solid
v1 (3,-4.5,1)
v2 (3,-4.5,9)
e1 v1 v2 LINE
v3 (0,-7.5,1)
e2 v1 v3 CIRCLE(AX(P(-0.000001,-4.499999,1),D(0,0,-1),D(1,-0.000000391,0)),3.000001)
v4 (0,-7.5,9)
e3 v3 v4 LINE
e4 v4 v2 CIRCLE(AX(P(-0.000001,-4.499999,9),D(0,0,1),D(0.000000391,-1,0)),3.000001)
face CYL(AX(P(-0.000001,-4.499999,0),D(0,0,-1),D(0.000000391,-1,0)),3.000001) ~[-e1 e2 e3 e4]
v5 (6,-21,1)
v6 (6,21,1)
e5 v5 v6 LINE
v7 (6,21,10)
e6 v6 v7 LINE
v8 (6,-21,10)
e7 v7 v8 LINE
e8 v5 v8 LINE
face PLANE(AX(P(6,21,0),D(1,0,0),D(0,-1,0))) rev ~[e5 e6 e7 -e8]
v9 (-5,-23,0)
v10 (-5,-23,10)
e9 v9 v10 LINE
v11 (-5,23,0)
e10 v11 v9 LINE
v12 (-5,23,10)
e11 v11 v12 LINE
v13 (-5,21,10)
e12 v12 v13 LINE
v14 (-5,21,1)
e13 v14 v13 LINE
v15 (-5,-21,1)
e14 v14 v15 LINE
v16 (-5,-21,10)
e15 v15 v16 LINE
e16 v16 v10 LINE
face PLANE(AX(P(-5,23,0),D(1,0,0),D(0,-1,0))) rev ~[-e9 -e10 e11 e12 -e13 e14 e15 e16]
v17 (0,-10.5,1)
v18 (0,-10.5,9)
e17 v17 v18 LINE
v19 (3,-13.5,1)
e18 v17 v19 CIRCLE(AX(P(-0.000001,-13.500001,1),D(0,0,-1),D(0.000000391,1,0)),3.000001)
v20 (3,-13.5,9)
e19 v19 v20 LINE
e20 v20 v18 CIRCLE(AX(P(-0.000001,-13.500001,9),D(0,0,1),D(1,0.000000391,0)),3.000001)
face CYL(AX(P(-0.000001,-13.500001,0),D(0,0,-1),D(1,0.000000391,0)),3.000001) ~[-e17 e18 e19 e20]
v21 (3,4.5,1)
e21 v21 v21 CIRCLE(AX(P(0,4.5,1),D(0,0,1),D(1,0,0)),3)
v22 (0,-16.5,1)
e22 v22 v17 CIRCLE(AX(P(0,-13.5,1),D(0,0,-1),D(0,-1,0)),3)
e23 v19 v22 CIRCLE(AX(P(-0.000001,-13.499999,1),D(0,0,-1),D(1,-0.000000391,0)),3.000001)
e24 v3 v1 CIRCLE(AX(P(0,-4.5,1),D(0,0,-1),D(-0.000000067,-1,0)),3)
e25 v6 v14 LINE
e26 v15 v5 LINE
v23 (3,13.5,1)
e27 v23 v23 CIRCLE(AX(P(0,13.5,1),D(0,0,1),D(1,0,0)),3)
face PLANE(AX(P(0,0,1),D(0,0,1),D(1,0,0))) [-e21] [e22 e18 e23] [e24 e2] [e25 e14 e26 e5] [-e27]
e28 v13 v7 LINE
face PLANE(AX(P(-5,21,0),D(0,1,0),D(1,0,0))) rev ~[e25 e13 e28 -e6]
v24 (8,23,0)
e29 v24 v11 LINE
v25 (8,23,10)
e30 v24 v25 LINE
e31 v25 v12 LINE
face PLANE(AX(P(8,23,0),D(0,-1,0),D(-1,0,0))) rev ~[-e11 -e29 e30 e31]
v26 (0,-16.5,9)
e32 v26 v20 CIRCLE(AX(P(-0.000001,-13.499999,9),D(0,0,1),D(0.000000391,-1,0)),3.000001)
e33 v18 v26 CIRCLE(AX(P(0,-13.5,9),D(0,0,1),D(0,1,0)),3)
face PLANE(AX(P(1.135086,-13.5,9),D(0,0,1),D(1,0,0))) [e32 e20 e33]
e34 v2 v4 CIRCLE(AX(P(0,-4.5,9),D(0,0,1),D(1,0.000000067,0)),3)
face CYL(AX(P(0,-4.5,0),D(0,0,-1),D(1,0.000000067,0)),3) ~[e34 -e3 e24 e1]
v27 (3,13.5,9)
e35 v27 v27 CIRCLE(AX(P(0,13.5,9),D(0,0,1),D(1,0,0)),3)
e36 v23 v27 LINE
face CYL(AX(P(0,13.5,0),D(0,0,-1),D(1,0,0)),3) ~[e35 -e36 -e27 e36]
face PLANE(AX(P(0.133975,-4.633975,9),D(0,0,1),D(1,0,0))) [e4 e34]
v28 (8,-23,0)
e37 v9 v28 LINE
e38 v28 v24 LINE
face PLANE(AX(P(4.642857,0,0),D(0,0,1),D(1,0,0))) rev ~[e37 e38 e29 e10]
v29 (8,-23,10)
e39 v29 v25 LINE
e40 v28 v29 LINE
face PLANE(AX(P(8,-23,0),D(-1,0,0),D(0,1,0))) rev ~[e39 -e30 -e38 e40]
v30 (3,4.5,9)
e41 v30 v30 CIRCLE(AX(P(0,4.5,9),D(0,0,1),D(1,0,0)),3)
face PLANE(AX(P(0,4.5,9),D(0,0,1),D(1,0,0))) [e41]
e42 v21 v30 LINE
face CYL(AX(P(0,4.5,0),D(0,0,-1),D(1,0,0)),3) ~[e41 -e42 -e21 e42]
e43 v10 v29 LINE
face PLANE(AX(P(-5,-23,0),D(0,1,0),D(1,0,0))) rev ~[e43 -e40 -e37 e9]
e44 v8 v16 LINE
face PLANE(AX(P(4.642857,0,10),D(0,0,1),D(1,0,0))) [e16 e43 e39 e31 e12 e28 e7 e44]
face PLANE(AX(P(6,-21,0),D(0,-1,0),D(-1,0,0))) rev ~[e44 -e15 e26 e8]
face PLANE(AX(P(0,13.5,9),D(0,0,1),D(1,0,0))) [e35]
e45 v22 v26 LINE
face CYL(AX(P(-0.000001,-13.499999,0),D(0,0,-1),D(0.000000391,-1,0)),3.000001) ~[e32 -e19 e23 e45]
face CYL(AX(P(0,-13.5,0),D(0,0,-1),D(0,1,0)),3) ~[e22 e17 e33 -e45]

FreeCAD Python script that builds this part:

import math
import FreeCAD as App
import Part
import Sketcher

V = App.Vector

doc = App.newDocument("Part")
body = doc.addObject("PartDesign::Body", "Body")

sketch1 = body.newObject("Sketcher::SketchObject", "Sketch")
sketch1.AttachmentSupport = (doc.getObject("XY_Plane"), [""])
sketch1.MapMode = "FlatFace"
sketch1.addGeometry(Part.LineSegment(V(-5, -21, 0), V(6, -21, 0)), False)
sketch1.addGeometry(Part.LineSegment(V(6, -21, 0), V(6, 21, 0)), False)
sketch1.addGeometry(Part.LineSegment(V(6, 21, 0), V(-5, 21, 0)), False)
sketch1.addGeometry(Part.LineSegment(V(-5, 21, 0), V(-5, -21, 0)), False)
sketch1.addGeometry(Part.ArcOfCircle(Part.Circle(V(0, -13.5, 0), V(0, 0, 1), 3), math.radians(0), math.radians(90)), False)
sketch1.addGeometry(Part.ArcOfCircle(Part.Circle(V(0, -13.5, 0), V(0, 0, 1), 3), math.radians(-90), math.radians(0)), False)
sketch1.addGeometry(Part.ArcOfCircle(Part.Circle(V(0, -13.5, 0), V(0, 0, 1), 3), math.radians(90), math.radians(270)), False)
sketch1.addGeometry(Part.ArcOfCircle(Part.Circle(V(0, -4.5, 0), V(0, 0, 1), 3), math.radians(0), math.radians(270)), False)
sketch1.addGeometry(Part.ArcOfCircle(Part.Circle(V(0, -4.5, 0), V(0, 0, 1), 3), math.radians(-90), math.radians(0)), False)
sketch1.addGeometry(Part.Circle(V(0, 4.5, 0), V(0, 0, 1), 3), False)
sketch1.addGeometry(Part.Circle(V(0, 13.5, 0), V(0, 0, 1), 3), False)
sketch1.addConstraint(Sketcher.Constraint("Coincident", 0, 2, 1, 1))
sketch1.addConstraint(Sketcher.Constraint("Coincident", 1, 2, 2, 1))
sketch1.addConstraint(Sketcher.Constraint("Coincident", 2, 2, 3, 1))
sketch1.addConstraint(Sketcher.Constraint("Coincident", 3, 2, 0, 1))
sketch1.addConstraint(Sketcher.Constraint("Tangent", 4, 1, 5, 2))
sketch1.addConstraint(Sketcher.Constraint("Tangent", 5, 1, 6, 2))
sketch1.addConstraint(Sketcher.Constraint("Tangent", 6, 1, 4, 2))
sketch1.addConstraint(Sketcher.Constraint("Tangent", 7, 1, 8, 2))
sketch1.addConstraint(Sketcher.Constraint("Coincident", 8, 1, 7, 2))
sketch1.addConstraint(Sketcher.Constraint("Horizontal", 0))
sketch1.addConstraint(Sketcher.Constraint("Vertical", 1))
sketch1.addConstraint(Sketcher.Constraint("Horizontal", 2))
sketch1.addConstraint(Sketcher.Constraint("Vertical", 3))
sketch1.addConstraint(Sketcher.Constraint("Equal", 6, 7))
sketch1.addConstraint(Sketcher.Constraint("Equal", 8, 9))
sketch1.addConstraint(Sketcher.Constraint("Equal", 9, 10))
sketch1.addConstraint(Sketcher.Constraint("Symmetric", 7, 3, 9, 3, -1, 1))
sketch1.addConstraint(Sketcher.Constraint("Symmetric", 4, 3, 10, 3, -1, 1))
sketch1.addConstraint(Sketcher.Constraint("PointOnObject", 4, 3, -2))
sketch1.addConstraint(Sketcher.Constraint("PointOnObject", 7, 3, -2))
sketch1.addConstraint(Sketcher.Constraint("PointOnObject", 5, 1, -2))
sketch1.addConstraint(Sketcher.Constraint("PointOnObject", 6, 1, -2))
sketch1.addConstraint(Sketcher.Constraint("PointOnObject", 8, 1, -2))
sketch1.addConstraint(Sketcher.Constraint("Horizontal", 6, 3, 4, 1))
sketch1.addConstraint(Sketcher.Constraint("Horizontal", 8, 3, 7, 1))
sketch1.addConstraint(Sketcher.Constraint("Diameter", 9, 6.0))
sketch1.addConstraint(Sketcher.Constraint("DistanceX", 0, 1, 0, 2, 11.0))
sketch1.addConstraint(Sketcher.Constraint("DistanceY", 1, 1, 1, 2, 42.0))
sketch1.addConstraint(Sketcher.Constraint("DistanceX", -1, 1, 0, 2, 6.0))
sketch1.addConstraint(Sketcher.Constraint("DistanceY", 0, 2, -1, 1, 21.0))
sketch1.addConstraint(Sketcher.Constraint("DistanceY", 5, 3, 7, 3, 8.999999))
sketch1.addConstraint(Sketcher.Constraint("DistanceY", 8, 3, 9, 3, 8.999999))
pad1 = body.newObject("PartDesign::Pad", "Pad")
pad1.Profile = sketch1
pad1.Length = 1

sketch2 = body.newObject("Sketcher::SketchObject", "Sketch001")
sketch2.AttachmentSupport = (doc.getObject("XY_Plane"), [""])
sketch2.MapMode = "FlatFace"
sketch2.addGeometry(Part.LineSegment(V(-5, 23, 0), V(-5, 21, 0)), False)
sketch2.addGeometry(Part.LineSegment(V(-5, 21, 0), V(6, 21, 0)), False)
sketch2.addGeometry(Part.LineSegment(V(6, 21, 0), V(6, -21, 0)), False)
sketch2.addGeometry(Part.LineSegment(V(6, -21, 0), V(-5, -21, 0)), False)
sketch2.addGeometry(Part.LineSegment(V(-5, -21, 0), V(-5, -23, 0)), False)
sketch2.addGeometry(Part.LineSegment(V(-5, -23, 0), V(8, -23, 0)), False)
sketch2.addGeometry(Part.LineSegment(V(8, -23, 0), V(8, 23, 0)), False)
sketch2.addGeometry(Part.LineSegment(V(8, 23, 0), V(-5, 23, 0)), False)
sketch2.addConstraint(Sketcher.Constraint("Coincident", 0, 2, 1, 1))
sketch2.addConstraint(Sketcher.Constraint("Coincident", 1, 2, 2, 1))
sketch2.addConstraint(Sketcher.Constraint("Coincident", 2, 2, 3, 1))
sketch2.addConstraint(Sketcher.Constraint("Coincident", 3, 2, 4, 1))
sketch2.addConstraint(Sketcher.Constraint("Coincident", 4, 2, 5, 1))
sketch2.addConstraint(Sketcher.Constraint("Coincident", 5, 2, 6, 1))
sketch2.addConstraint(Sketcher.Constraint("Coincident", 6, 2, 7, 1))
sketch2.addConstraint(Sketcher.Constraint("Coincident", 7, 2, 0, 1))
sketch2.addConstraint(Sketcher.Constraint("Vertical", 0))
sketch2.addConstraint(Sketcher.Constraint("Horizontal", 1))
sketch2.addConstraint(Sketcher.Constraint("Vertical", 2))
sketch2.addConstraint(Sketcher.Constraint("Horizontal", 3))
sketch2.addConstraint(Sketcher.Constraint("Vertical", 4))
sketch2.addConstraint(Sketcher.Constraint("Horizontal", 5))
sketch2.addConstraint(Sketcher.Constraint("Vertical", 6))
sketch2.addConstraint(Sketcher.Constraint("Horizontal", 7))
sketch2.addConstraint(Sketcher.Constraint("Symmetric", 0, 2, 3, 2, -1))
sketch2.addConstraint(Sketcher.Constraint("Equal", 0, 4))
sketch2.addConstraint(Sketcher.Constraint("DistanceX", 1, 1, 1, 2, 11.0))
sketch2.addConstraint(Sketcher.Constraint("DistanceX", 5, 1, 5, 2, 13.0))
sketch2.addConstraint(Sketcher.Constraint("DistanceY", 0, 2, 0, 1, 2.0))
sketch2.addConstraint(Sketcher.Constraint("DistanceY", 2, 2, 2, 1, 42.0))
sketch2.addConstraint(Sketcher.Constraint("DistanceX", 0, 2, -1, 1, 5.0))
pad2 = body.newObject("PartDesign::Pad", "Pad001")
pad2.Profile = sketch2
pad2.Length = 10

sketch3 = body.newObject("Sketcher::SketchObject", "Sketch002")
sketch3.AttachmentSupport = (doc.getObject("XY_Plane"), [""])
sketch3.MapMode = "FlatFace"
sketch3.addGeometry(Part.Circle(V(0, 13.5, 0), V(0, 0, 1), 3), False)
sketch3.addGeometry(Part.Circle(V(0, 4.5, 0), V(0, 0, 1), 3), False)
sketch3.addGeometry(Part.ArcOfCircle(Part.Circle(V(0, -4.5, 0), V(0, 0, 1), 3), math.radians(0), math.radians(270)), False)
sketch3.addGeometry(Part.ArcOfCircle(Part.Circle(V(0, -4.5, 0), V(0, 0, 1), 3), math.radians(-90), math.radians(0)), False)
sketch3.addGeometry(Part.ArcOfCircle(Part.Circle(V(0, -13.5, 0), V(0, 0, 1), 3), math.radians(-90), math.radians(0)), False)
sketch3.addGeometry(Part.ArcOfCircle(Part.Circle(V(0, -13.5, 0), V(0, 0, 1), 3), math.radians(0), math.radians(90)), False)
sketch3.addGeometry(Part.ArcOfCircle(Part.Circle(V(0, -13.5, 0), V(0, 0, 1), 3), math.radians(90), math.radians(270)), False)
sketch3.addConstraint(Sketcher.Constraint("Tangent", 2, 1, 3, 2))
sketch3.addConstraint(Sketcher.Constraint("Coincident", 3, 1, 2, 2))
sketch3.addConstraint(Sketcher.Constraint("Tangent", 4, 2, 5, 1))
sketch3.addConstraint(Sketcher.Constraint("Tangent", 5, 2, 6, 1))
sketch3.addConstraint(Sketcher.Constraint("Tangent", 6, 2, 4, 1))
sketch3.addConstraint(Sketcher.Constraint("Equal", 0, 1))
sketch3.addConstraint(Sketcher.Constraint("Equal", 1, 2))
sketch3.addConstraint(Sketcher.Constraint("Equal", 3, 4))
sketch3.addConstraint(Sketcher.Constraint("Symmetric", 1, 3, 2, 3, -1, 1))
sketch3.addConstraint(Sketcher.Constraint("Symmetric", 0, 3, 4, 3, -1, 1))
sketch3.addConstraint(Sketcher.Constraint("PointOnObject", 0, 3, -2))
sketch3.addConstraint(Sketcher.Constraint("PointOnObject", 1, 3, -2))
sketch3.addConstraint(Sketcher.Constraint("PointOnObject", 3, 1, -2))
sketch3.addConstraint(Sketcher.Constraint("PointOnObject", 5, 2, -2))
sketch3.addConstraint(Sketcher.Constraint("PointOnObject", 6, 2, -2))
sketch3.addConstraint(Sketcher.Constraint("Horizontal", 3, 3, 2, 1))
sketch3.addConstraint(Sketcher.Constraint("Horizontal", 6, 3, 4, 2))
sketch3.addConstraint(Sketcher.Constraint("Diameter", 0, 6.0))
sketch3.addConstraint(Sketcher.Constraint("DistanceY", 1, 3, 0, 3, 9.0))
sketch3.addConstraint(Sketcher.Constraint("DistanceY", 2, 3, 1, 3, 9.0))
pad3 = body.newObject("PartDesign::Pad", "Pad002")
pad3.Profile = sketch3
pad3.Length = 9

doc.recompute()
